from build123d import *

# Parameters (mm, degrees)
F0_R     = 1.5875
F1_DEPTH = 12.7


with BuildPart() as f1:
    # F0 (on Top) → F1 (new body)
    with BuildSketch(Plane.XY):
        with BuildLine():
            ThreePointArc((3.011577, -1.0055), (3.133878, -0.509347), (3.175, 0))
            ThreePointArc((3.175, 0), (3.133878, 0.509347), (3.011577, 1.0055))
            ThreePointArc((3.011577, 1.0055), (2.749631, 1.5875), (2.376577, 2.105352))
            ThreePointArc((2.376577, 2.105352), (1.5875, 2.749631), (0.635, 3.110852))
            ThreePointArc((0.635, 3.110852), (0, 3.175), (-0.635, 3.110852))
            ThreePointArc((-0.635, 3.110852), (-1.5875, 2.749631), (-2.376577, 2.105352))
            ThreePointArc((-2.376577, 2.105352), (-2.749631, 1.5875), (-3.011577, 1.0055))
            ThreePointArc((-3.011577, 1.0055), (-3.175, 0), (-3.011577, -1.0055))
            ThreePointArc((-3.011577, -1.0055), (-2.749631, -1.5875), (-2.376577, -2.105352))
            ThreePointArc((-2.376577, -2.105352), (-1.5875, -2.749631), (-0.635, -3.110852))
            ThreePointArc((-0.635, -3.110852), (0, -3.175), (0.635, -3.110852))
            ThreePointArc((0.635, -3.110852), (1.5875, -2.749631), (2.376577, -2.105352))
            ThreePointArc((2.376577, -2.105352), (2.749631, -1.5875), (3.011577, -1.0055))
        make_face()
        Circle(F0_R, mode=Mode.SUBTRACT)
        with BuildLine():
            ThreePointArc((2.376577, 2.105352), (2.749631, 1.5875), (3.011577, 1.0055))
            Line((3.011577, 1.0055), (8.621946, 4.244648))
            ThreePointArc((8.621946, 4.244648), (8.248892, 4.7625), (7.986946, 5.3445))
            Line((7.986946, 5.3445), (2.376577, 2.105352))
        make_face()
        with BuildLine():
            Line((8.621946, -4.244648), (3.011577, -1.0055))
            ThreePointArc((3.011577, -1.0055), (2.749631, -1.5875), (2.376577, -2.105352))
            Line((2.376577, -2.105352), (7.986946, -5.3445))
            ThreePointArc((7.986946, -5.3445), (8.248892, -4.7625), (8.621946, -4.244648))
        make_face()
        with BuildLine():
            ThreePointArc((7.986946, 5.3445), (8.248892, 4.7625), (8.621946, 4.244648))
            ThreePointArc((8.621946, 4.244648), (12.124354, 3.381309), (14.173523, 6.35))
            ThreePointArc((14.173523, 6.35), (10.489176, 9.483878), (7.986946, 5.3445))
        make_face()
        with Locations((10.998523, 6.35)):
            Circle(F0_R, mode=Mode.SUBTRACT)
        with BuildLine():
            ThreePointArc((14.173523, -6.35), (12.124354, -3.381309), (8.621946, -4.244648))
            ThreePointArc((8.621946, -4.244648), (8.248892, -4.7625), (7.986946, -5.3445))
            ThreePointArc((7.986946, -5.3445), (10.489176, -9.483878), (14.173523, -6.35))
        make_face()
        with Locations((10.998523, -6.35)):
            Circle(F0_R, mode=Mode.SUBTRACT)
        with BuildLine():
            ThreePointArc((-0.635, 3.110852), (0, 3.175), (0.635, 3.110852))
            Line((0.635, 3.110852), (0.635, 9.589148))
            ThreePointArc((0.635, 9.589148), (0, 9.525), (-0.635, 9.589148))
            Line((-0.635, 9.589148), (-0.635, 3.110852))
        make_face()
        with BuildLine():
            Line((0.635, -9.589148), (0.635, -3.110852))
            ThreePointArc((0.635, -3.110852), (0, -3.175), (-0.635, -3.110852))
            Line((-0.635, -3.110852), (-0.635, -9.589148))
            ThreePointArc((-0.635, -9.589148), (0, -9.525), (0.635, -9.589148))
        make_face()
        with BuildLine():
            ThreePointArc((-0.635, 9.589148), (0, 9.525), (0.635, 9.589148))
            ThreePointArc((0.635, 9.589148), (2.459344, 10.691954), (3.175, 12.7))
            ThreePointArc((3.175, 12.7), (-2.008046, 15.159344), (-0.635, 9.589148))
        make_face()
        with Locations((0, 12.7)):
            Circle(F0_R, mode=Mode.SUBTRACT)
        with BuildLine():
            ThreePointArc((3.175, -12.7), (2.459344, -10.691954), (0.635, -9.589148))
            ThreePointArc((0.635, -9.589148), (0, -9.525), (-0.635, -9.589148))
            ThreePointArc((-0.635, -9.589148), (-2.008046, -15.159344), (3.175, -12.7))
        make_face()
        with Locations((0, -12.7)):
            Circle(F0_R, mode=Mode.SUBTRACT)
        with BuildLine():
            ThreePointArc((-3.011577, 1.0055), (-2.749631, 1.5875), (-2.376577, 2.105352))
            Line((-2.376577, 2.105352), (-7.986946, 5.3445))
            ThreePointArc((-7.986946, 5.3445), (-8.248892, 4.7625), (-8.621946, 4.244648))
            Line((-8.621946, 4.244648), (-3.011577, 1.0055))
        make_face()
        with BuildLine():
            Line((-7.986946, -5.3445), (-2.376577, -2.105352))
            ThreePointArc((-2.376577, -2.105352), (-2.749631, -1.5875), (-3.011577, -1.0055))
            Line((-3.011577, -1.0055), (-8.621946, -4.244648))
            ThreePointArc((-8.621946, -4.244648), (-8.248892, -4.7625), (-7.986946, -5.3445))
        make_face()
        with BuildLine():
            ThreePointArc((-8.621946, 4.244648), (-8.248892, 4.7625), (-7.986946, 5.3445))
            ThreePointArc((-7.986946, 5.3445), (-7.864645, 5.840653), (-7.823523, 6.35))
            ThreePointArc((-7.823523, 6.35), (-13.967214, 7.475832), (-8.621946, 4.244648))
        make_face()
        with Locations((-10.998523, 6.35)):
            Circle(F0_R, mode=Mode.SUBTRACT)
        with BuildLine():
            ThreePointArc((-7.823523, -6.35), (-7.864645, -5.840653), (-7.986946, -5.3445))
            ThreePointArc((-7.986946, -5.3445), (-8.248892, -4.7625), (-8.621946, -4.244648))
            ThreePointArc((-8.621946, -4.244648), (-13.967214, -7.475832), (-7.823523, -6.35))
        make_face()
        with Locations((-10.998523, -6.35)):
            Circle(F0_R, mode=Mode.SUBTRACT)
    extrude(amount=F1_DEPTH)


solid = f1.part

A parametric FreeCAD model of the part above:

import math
import FreeCAD as App
import Part
import Sketcher
from FreeCAD import Vector
Q = App.Units.Quantity

doc = App.newDocument("Part")
body = doc.addObject("PartDesign::Body", "Body")

sketch1 = body.newObject("Sketcher::SketchObject", "Sketch")
sketch1.AttachmentSupport = (doc.getObject("XY_Plane"), [""])
sketch1.MapMode = "FlatFace"
sketch1.addGeometry(Part.ArcOfCircle(Part.Circle(Vector(0, 0, 0), Vector(0, 0, 1), 3.2), math.radians(-18.46), math.radians(0)), False)
sketch1.addGeometry(Part.ArcOfCircle(Part.Circle(Vector(0, 0, 0), Vector(0, 0, 1), 3.2), math.radians(0), math.radians(18.46)), False)
sketch1.addGeometry(Part.LineSegment(Vector(3, 1, 0), Vector(8.6, 4.2, 0)), False)
sketch1.addGeometry(Part.ArcOfCircle(Part.Circle(Vector(11, 6.4, 0), Vector(0, 0, 1), 3.2), math.radians(-138), math.radians(0)), False)
sketch1.addGeometry(Part.ArcOfCircle(Part.Circle(Vector(11, 6.3, 0), Vector(0, 0, 1), 3.2), math.radians(0), math.radians(198)), False)
sketch1.addGeometry(Part.LineSegment(Vector(8, 5.3, 0), Vector(2.4, 2.1, 0)), False)
sketch1.addGeometry(Part.ArcOfCircle(Part.Circle(Vector(0, 0, 0), Vector(0, 0, 1), 3.2), math.radians(42), math.radians(78)), False)
sketch1.addGeometry(Part.LineSegment(Vector(0.6, 3.1, 0), Vector(0.6, 9.6, 0)), False)
sketch1.addGeometry(Part.ArcOfCircle(Part.Circle(Vector(0, 12.7, 0), Vector(0, 0, 1), 3.2), math.radians(-78), math.radians(0)), False)
sketch1.addGeometry(Part.ArcOfCircle(Part.Circle(Vector(0, 12.7, 0), Vector(0, 0, 1), 3.2), math.radians(0), math.radians(258)), False)
sketch1.addGeometry(Part.LineSegment(Vector(-0.6, 9.6, 0), Vector(-0.6, 3.1, 0)), False)
sketch1.addGeometry(Part.ArcOfCircle(Part.Circle(Vector(0, 0, 0), Vector(0, 0, 1), 3.2), math.radians(102), math.radians(138)), False)
sketch1.addGeometry(Part.LineSegment(Vector(-2.4, 2.1, 0), Vector(-8, 5.3, 0)), False)
sketch1.addGeometry(Part.ArcOfCircle(Part.Circle(Vector(-11, 6.3, 0), Vector(0, 0, 1), 3.2), math.radians(-18.46), math.radians(0)), False)
sketch1.addGeometry(Part.ArcOfCircle(Part.Circle(Vector(-11, 6.3, 0), Vector(0, 0, 1), 3.2), math.radians(0), math.radians(318)), False)
sketch1.addGeometry(Part.LineSegment(Vector(-8.6, 4.2, 0), Vector(-3, 1, 0)), False)
sketch1.addGeometry(Part.ArcOfCircle(Part.Circle(Vector(0, 0, 0), Vector(0, 0, 1), 3.2), math.radians(162), math.radians(198)), False)
sketch1.addGeometry(Part.LineSegment(Vector(-3, -1, 0), Vector(-8.6, -4.2, 0)), False)
sketch1.addGeometry(Part.ArcOfCircle(Part.Circle(Vector(-11, -6.3, 0), Vector(0, 0, 1), 3.2), math.radians(42), math.radians(360)), False)
sketch1.addGeometry(Part.ArcOfCircle(Part.Circle(Vector(-11, -6.3, 0), Vector(0, 0, 1), 3.2), math.radians(0), math.radians(18.46)), False)
sketch1.addGeometry(Part.LineSegment(Vector(-8, -5.3, 0), Vector(-2.4, -2.1, 0)), False)
sketch1.addGeometry(Part.ArcOfCircle(Part.Circle(Vector(0, 0, 0), Vector(0, 0, 1), 3.2), math.radians(-138), math.radians(-102)), False)
sketch1.addGeometry(Part.LineSegment(Vector(-0.6, -3.1, 0), Vector(-0.6, -9.6, 0)), False)
sketch1.addGeometry(Part.ArcOfCircle(Part.Circle(Vector(0, -12.7, 0), Vector(0, 0, 1), 3.2), math.radians(102), math.radians(360)), False)
sketch1.addGeometry(Part.ArcOfCircle(Part.Circle(Vector(0, -12.7, 0), Vector(0, 0, 1), 3.2), math.radians(0), math.radians(78)), False)
sketch1.addGeometry(Part.LineSegment(Vector(0.6, -9.6, 0), Vector(0.6, -3.1, 0)), False)
sketch1.addGeometry(Part.ArcOfCircle(Part.Circle(Vector(0, 0, 0), Vector(0, 0, 1), 3.2), math.radians(-78), math.radians(-42)), False)
sketch1.addGeometry(Part.LineSegment(Vector(2.4, -2.1, 0), Vector(8, -5.3, 0)), False)
sketch1.addGeometry(Part.ArcOfCircle(Part.Circle(Vector(11, -6.3, 0), Vector(0, 0, 1), 3.2), math.radians(162), math.radians(360)), False)
sketch1.addGeometry(Part.ArcOfCircle(Part.Circle(Vector(11, -6.4, 0), Vector(0, 0, 1), 3.2), math.radians(0), math.radians(138)), False)
sketch1.addGeometry(Part.LineSegment(Vector(8.6, -4.2, 0), Vector(3, -1, 0)), False)
sketch1.addGeometry(Part.Circle(Vector(-11, -6.3, 0), Vector(0, 0, 1), 1.6), False)
sketch1.addGeometry(Part.Circle(Vector(0, -12.7, 0), Vector(0, 0, 1), 1.6), False)
sketch1.addGeometry(Part.Circle(Vector(11, -6.3, 0), Vector(0, 0, 1), 1.6), False)
sketch1.addGeometry(Part.Circle(Vector(-11, 6.3, 0), Vector(0, 0, 1), 1.6), False)
sketch1.addGeometry(Part.Circle(Vector(0, 0, 0), Vector(0, 0, 1), 1.6), False)
sketch1.addGeometry(Part.Circle(Vector(11, 6.3, 0), Vector(0, 0, 1), 1.6), False)
sketch1.addGeometry(Part.Circle(Vector(0, 12.7, 0), Vector(0, 0, 1), 1.6), False)
sketch1.addConstraint(Sketcher.Constraint("Tangent", 0, 2, 1, 1))
sketch1.addConstraint(Sketcher.Constraint("Coincident", 1, 2, 2, 1))
sketch1.addConstraint(Sketcher.Constraint("Coincident", 2, 2, 3, 1))
sketch1.addConstraint(Sketcher.Constraint("Tangent", 3, 2, 4, 1))
sketch1.addConstraint(Sketcher.Constraint("Coincident", 4, 2, 5, 1))
sketch1.addConstraint(Sketcher.Constraint("Coincident", 5, 2, 6, 1))
sketch1.addConstraint(Sketcher.Constraint("Coincident", 6, 2, 7, 1))
sketch1.addConstraint(Sketcher.Constraint("Coincident", 7, 2, 8, 1))
sketch1.addConstraint(Sketcher.Constraint("Tangent", 8, 2, 9, 1))
sketch1.addConstraint(Sketcher.Constraint("Coincident", 9, 2, 10, 1))
sketch1.addConstraint(Sketcher.Constraint("Coincident", 10, 2, 11, 1))
sketch1.addConstraint(Sketcher.Constraint("Coincident", 11, 2, 12, 1))
sketch1.addConstraint(Sketcher.Constraint("Coincident", 12, 2, 13, 1))
sketch1.addConstraint(Sketcher.Constraint("Tangent", 13, 2, 14, 1))
sketch1.addConstraint(Sketcher.Constraint("Coincident", 14, 2, 15, 1))
sketch1.addConstraint(Sketcher.Constraint("Coincident", 15, 2, 16, 1))
sketch1.addConstraint(Sketcher.Constraint("Coincident", 16, 2, 17, 1))
sketch1.addConstraint(Sketcher.Constraint("Coincident", 17, 2, 18, 1))
sketch1.addConstraint(Sketcher.Constraint("Tangent", 18, 2, 19, 1))
sketch1.addConstraint(Sketcher.Constraint("Coincident", 19, 2, 20, 1))
sketch1.addConstraint(Sketcher.Constraint("Coincident", 20, 2, 21, 1))
sketch1.addConstraint(Sketcher.Constraint("Coincident", 21, 2, 22, 1))
sketch1.addConstraint(Sketcher.Constraint("Coincident", 22, 2, 23, 1))
sketch1.addConstraint(Sketcher.Constraint("Tangent", 23, 2, 24, 1))
sketch1.addConstraint(Sketcher.Constraint("Coincident", 24, 2, 25, 1))
sketch1.addConstraint(Sketcher.Constraint("Coincident", 25, 2, 26, 1))
sketch1.addConstraint(Sketcher.Constraint("Coincident", 26, 2, 27, 1))
sketch1.addConstraint(Sketcher.Constraint("Coincident", 27, 2, 28, 1))
sketch1.addConstraint(Sketcher.Constraint("Tangent", 28, 2, 29, 1))
sketch1.addConstraint(Sketcher.Constraint("Coincident", 29, 2, 30, 1))
sketch1.addConstraint(Sketcher.Constraint("Coincident", 30, 2, 0, 1))
sketch1.addConstraint(Sketcher.Constraint("Vertical", 7))
sketch1.addConstraint(Sketcher.Constraint("Vertical", 10))
sketch1.addConstraint(Sketcher.Constraint("Vertical", 22))
sketch1.addConstraint(Sketcher.Constraint("Vertical", 25))
sketch1.addConstraint(Sketcher.Constraint("Coincident", 0, 3, -1, 1))
sketch1.addConstraint(Sketcher.Constraint("Coincident", 6, 3, -1, 1))
sketch1.addConstraint(Sketcher.Constraint("Coincident", 11, 3, -1, 1))
sketch1.addConstraint(Sketcher.Constraint("Coincident", 16, 3, -1, 1))
sketch1.addConstraint(Sketcher.Constraint("Coincident", 21, 3, -1, 1))
sketch1.addConstraint(Sketcher.Constraint("Coincident", 26, 3, -1, 1))
sketch1.addConstraint(Sketcher.Constraint("Coincident", 35, 3, -1, 1))
sketch1.addConstraint(Sketcher.Constraint("Coincident", 31, 3, 18, 3))
sketch1.addConstraint(Sketcher.Constraint("Coincident", 32, 3, 23, 3))
sketch1.addConstraint(Sketcher.Constraint("Coincident", 33, 3, 28, 3))
sketch1.addConstraint(Sketcher.Constraint("Coincident", 34, 3, 13, 3))
sketch1.addConstraint(Sketcher.Constraint("Coincident", 36, 3, 3, 3))
sketch1.addConstraint(Sketcher.Constraint("Coincident", 37, 3, 8, 3))
sketch1.addConstraint(Sketcher.Constraint("Equal", 0, 1))
sketch1.addConstraint(Sketcher.Constraint("Equal", 1, 3))
sketch1.addConstraint(Sketcher.Constraint("Equal", 3, 4))
sketch1.addConstraint(Sketcher.Constraint("Equal", 4, 8))
sketch1.addConstraint(Sketcher.Constraint("Equal", 4, 9))
sketch1.addConstraint(Sketcher.Constraint("Equal", 6, 11))
sketch1.addConstraint(Sketcher.Constraint("Equal", 9, 13))
sketch1.addConstraint(Sketcher.Constraint("Equal", 13, 14))
sketch1.addConstraint(Sketcher.Constraint("Equal", 14, 18))
sketch1.addConstraint(Sketcher.Constraint("Equal", 18, 19))
sketch1.addConstraint(Sketcher.Constraint("Equal", 11, 21))
sketch1.addConstraint(Sketcher.Constraint("Equal", 19, 23))
sketch1.addConstraint(Sketcher.Constraint("Equal", 18, 24))
sketch1.addConstraint(Sketcher.Constraint("Equal", 21, 26))
sketch1.addConstraint(Sketcher.Constraint("Equal", 24, 28))
sketch1.addConstraint(Sketcher.Constraint("Equal", 28, 29))
sketch1.addConstraint(Sketcher.Constraint("Equal", 31, 32))
sketch1.addConstraint(Sketcher.Constraint("Equal", 32, 33))
sketch1.addConstraint(Sketcher.Constraint("Equal", 33, 34))
sketch1.addConstraint(Sketcher.Constraint("Equal", 34, 35))
sketch1.addConstraint(Sketcher.Constraint("Equal", 35, 36))
sketch1.addConstraint(Sketcher.Constraint("Equal", 36, 37))
sketch1.addConstraint(Sketcher.Constraint("Symmetric", 3, 3, 18, 3, -1, 1))
sketch1.addConstraint(Sketcher.Constraint("Symmetric", 8, 3, 23, 3, -1, 1))
sketch1.addConstraint(Sketcher.Constraint("Symmetric", 13, 3, 28, 3, -1, 1))
sketch1.addConstraint(Sketcher.Constraint("Symmetric", 1, 2, 16, 2, -1, 1))
sketch1.addConstraint(Sketcher.Constraint("Symmetric", 3, 3, 13, 3, -2))
sketch1.addConstraint(Sketcher.Constraint("Symmetric", 7, 2, 9, 2, -2))
sketch1.addConstraint(Sketcher.Constraint("PointOnObject", 0, 2, -1))
sketch1.addConstraint(Sketcher.Constraint("Parallel", 2, 5))
sketch1.addConstraint(Sketcher.Constraint("Parallel", 12, 15))
sketch1.addConstraint(Sketcher.Constraint("Parallel", 5, 17))
sketch1.addConstraint(Sketcher.Constraint("Parallel", 17, 20))
sketch1.addConstraint(Sketcher.Constraint("Parallel", 15, 27))
sketch1.addConstraint(Sketcher.Constraint("Parallel", 27, 30))
sketch1.addConstraint(Sketcher.Constraint("Horizontal", 36, 3, 3, 2))
sketch1.addConstraint(Sketcher.Constraint("Horizontal", 37, 3, 8, 2))
sketch1.addConstraint(Sketcher.Constraint("Horizontal", 5, 2, 11, 2))
sketch1.addConstraint(Sketcher.Constraint("Horizontal", 4, 2, 12, 2))
sketch1.addConstraint(Sketcher.Constraint("Horizontal", 3, 2, 13, 2))
sketch1.addConstraint(Sketcher.Constraint("Horizontal", 2, 2, 14, 2))
sketch1.addConstraint(Sketcher.Constraint("Horizontal", 33, 3, 18, 2))
sketch1.addConstraint(Sketcher.Constraint("Horizontal", 32, 3, 23, 2))
sketch1.addConstraint(Sketcher.Constraint("Horizontal", 22, 2, 24, 2))
sketch1.addConstraint(Sketcher.Constraint("Horizontal", 20, 2, 26, 2))
sketch1.addConstraint(Sketcher.Constraint("Horizontal", 18, 2, 28, 2))
sketch1.addConstraint(Sketcher.Constraint("Horizontal", 17, 2, 29, 2))
sketch1.addConstraint(Sketcher.Constraint("Vertical", 12, 2, 19, 2))
sketch1.addConstraint(Sketcher.Constraint("Vertical", 10, 2, 21, 2))
sketch1.addConstraint(Sketcher.Constraint("Equal", 2, 5))
sketch1.addConstraint(Sketcher.Constraint("Diameter", 31, Q("0.125 in")))
sketch1.addConstraint(Sketcher.Constraint("Angle", 2, Q("30 deg")))
sketch1.addConstraint(Sketcher.Constraint("Radius", 0, Q("0.125 in")))
sketch1.addConstraint(Sketcher.Constraint("Radius", 6, Q("0.1249998 in")))
sketch1.addConstraint(Sketcher.Constraint("DistanceY", -1, 1, 8, 3, Q("0.5000001 in")))
sketch1.addConstraint(Sketcher.Constraint("DistanceY", 18, 3, 13, 3, Q("0.5 in")))
sketch1.addConstraint(Sketcher.Constraint("DistanceX", 7, 2, 8, 2, Q("0.1 in")))
sketch1.addConstraint(Sketcher.Constraint("DistanceX", 4, 2, 2, 2, Q("0.025 in")))
sketch1.addConstraint(Sketcher.Constraint("DistanceY", -1, 1, 1, 2, 1.0055))
pad1 = body.newObject("PartDesign::Pad", "Pad")
pad1.Profile = sketch1
pad1.Length = Q("0.5 in")

doc.recompute()
